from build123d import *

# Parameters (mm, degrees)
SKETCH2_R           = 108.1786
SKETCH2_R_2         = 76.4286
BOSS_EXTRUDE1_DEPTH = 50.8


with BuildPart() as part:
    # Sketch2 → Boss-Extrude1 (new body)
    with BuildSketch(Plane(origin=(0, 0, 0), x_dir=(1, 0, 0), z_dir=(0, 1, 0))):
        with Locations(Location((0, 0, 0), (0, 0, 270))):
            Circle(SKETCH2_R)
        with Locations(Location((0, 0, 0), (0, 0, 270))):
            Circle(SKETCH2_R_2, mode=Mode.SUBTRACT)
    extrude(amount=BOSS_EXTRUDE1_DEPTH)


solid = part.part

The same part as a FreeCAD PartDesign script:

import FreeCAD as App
import Part
import Sketcher
from FreeCAD import Vector
Q = App.Units.Quantity

doc = App.newDocument("Part")
params = doc.addObject("Spreadsheet::Sheet", "Params")
for row, (alias, value) in enumerate([
    ("sketch1_diameter", "8.518 in"),
    ("sketch1_diameter2", "6.018 in"),
    ("pad1_length", "2 in"),
], start=1):
    params.set(f"A{row}", alias)
    params.set(f"B{row}", "=" + value)
    params.setAlias(f"B{row}", alias)

body = doc.addObject("PartDesign::Body", "Body")

# Sketch on XZ plane
sketch1 = body.newObject("Sketcher::SketchObject", "Sketch")
sketch1.AttachmentSupport = (doc.getObject("XZ_Plane"), [""])
sketch1.MapMode = "FlatFace"
sketch1.addGeometry(Part.Circle(Vector(0, 0, 0), Vector(0, 0, 1), 108), False)
sketch1.addGeometry(Part.Circle(Vector(0, 0, 0), Vector(0, 0, 1), 76), False)
sketch1.addConstraint(Sketcher.Constraint("Coincident", 0, 3, -1, 1))
sketch1.addConstraint(Sketcher.Constraint("Coincident", 1, 3, -1, 1))
sketch1.addConstraint(Sketcher.Constraint("Diameter", 0, Q("8.518 in")))
sketch1.addConstraint(Sketcher.Constraint("Diameter", 1, Q("6.018 in")))
sketch1.setExpression("Constraints[2]", "Params.sketch1_diameter")
sketch1.setExpression("Constraints[3]", "Params.sketch1_diameter2")
pad1 = body.newObject("PartDesign::Pad", "Pad")
pad1.Profile = sketch1
pad1.setExpression("Length", "Params.pad1_length")
pad1.Reversed = True

doc.recompute()
